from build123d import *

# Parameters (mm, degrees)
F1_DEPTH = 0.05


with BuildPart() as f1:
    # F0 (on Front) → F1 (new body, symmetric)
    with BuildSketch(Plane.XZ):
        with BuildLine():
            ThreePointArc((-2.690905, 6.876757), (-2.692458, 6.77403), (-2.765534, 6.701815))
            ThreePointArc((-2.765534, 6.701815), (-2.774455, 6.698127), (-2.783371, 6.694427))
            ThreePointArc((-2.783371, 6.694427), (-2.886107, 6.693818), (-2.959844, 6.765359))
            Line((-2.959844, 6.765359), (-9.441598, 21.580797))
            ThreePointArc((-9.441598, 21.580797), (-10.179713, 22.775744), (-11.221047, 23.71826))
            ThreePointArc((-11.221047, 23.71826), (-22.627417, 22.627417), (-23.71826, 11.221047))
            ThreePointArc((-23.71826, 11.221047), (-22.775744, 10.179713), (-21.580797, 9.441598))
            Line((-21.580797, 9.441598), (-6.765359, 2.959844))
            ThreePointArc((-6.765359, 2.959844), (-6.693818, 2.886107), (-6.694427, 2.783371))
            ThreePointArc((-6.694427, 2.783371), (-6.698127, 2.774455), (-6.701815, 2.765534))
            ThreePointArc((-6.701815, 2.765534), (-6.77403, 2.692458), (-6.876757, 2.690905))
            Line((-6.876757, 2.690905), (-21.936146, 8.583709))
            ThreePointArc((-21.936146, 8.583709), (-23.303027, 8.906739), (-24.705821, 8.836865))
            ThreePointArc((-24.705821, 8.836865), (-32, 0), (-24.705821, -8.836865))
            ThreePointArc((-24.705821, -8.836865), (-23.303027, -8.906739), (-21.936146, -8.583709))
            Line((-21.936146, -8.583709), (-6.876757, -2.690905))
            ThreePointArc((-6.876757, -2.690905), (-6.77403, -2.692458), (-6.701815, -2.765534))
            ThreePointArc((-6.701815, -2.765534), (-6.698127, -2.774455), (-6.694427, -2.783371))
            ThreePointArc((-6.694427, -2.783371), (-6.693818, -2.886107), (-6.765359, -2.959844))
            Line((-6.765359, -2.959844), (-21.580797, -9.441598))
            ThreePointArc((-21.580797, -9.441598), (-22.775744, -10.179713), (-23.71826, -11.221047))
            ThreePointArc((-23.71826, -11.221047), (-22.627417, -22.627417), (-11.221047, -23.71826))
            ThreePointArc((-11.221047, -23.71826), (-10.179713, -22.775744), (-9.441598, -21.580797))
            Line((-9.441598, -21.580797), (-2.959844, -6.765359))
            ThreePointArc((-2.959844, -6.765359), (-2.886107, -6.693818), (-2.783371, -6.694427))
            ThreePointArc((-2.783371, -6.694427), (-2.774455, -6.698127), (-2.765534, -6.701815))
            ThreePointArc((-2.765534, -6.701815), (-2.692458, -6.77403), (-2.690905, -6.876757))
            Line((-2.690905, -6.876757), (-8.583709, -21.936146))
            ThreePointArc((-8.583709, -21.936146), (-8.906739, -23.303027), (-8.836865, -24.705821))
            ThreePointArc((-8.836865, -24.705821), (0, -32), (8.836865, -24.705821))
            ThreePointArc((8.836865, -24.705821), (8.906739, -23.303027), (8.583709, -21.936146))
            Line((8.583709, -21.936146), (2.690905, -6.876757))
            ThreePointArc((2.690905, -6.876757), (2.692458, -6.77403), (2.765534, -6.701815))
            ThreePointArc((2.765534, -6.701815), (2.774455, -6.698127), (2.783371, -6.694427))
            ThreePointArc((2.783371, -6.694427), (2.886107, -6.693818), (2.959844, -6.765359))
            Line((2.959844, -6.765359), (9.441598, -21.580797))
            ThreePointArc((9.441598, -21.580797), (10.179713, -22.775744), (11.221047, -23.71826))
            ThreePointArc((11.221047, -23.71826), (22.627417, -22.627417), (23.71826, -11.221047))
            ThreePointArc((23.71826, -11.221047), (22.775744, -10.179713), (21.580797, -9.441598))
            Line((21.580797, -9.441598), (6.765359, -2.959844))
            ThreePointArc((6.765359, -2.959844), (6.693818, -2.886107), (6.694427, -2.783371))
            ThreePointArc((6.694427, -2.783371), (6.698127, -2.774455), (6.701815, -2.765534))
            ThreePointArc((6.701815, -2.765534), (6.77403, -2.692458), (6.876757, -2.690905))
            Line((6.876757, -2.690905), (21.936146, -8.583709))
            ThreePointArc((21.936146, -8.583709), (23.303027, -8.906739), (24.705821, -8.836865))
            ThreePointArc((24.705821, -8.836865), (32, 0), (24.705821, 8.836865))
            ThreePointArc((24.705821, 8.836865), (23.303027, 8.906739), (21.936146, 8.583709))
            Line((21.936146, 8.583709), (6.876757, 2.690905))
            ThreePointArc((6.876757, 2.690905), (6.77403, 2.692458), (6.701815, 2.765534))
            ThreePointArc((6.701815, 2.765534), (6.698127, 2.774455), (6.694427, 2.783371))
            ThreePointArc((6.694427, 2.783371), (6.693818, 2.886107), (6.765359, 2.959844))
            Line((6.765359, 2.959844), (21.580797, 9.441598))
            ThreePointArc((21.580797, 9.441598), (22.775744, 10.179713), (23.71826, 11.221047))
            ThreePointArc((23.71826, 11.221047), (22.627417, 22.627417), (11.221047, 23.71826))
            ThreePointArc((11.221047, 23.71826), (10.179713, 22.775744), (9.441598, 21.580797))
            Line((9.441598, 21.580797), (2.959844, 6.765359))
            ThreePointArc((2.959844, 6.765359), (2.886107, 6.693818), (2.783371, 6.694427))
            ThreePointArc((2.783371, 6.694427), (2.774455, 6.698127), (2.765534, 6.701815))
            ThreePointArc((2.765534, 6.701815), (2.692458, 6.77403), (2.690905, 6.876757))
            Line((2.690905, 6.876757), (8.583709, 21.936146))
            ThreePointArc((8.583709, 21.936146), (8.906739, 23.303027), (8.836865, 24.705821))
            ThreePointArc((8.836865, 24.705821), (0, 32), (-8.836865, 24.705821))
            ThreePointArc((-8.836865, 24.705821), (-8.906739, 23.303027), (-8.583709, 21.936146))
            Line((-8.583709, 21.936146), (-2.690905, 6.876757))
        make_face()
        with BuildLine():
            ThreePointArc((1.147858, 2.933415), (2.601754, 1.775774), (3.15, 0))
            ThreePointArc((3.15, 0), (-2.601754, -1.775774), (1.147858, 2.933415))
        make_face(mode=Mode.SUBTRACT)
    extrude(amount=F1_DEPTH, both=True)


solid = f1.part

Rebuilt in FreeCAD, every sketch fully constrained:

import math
import FreeCAD as App
import Part
import Sketcher
from FreeCAD import Vector
Q = App.Units.Quantity

doc = App.newDocument("Part")
body = doc.addObject("PartDesign::Body", "Body")

# Sketch on XZ plane
sketch1 = body.newObject("Sketcher::SketchObject", "Sketch")
sketch1.AttachmentSupport = (doc.getObject("XZ_Plane"), [""])
sketch1.MapMode = "FlatFace"
sketch1.addGeometry(Part.ArcOfCircle(Part.Circle(Vector(-2.817313, 6.827293, 0), Vector(0, 0, 1), 0.135742), math.radians(-67.576164), math.radians(21.370669)), False)
sketch1.addGeometry(Part.ArcOfCircle(Part.Circle(Vector(-0.031439, 0.075607, 0), Vector(0, 0, 1), 7.168117), math.radians(112.421943), math.radians(112.576262)), False)
sketch1.addGeometry(Part.ArcOfCircle(Part.Circle(Vector(-2.835484, 6.819766, 0), Vector(0, 0, 1), 0.135741), math.radians(-156.370918), math.radians(-67.423665)), False)
sketch1.addGeometry(Part.LineSegment(Vector(-2.959844, 6.765359, 0), Vector(-9.441598, 21.580797, 0)), False)
sketch1.addGeometry(Part.ArcOfCircle(Part.Circle(Vector(-14.022392, 19.576694, 0), Vector(0, 0, 1), 5.00001), math.radians(23.629435), math.radians(55.925678)), False)
sketch1.addGeometry(Part.ArcOfCircle(Part.Circle(Vector(-16.263456, 16.263456, 0), Vector(0, 0, 1), 8.999999), math.radians(55.925684), math.radians(214.074316)), False)
sketch1.addGeometry(Part.ArcOfCircle(Part.Circle(Vector(-19.576694, 14.022392, 0), Vector(0, 0, 1), 5.00001), math.radians(-145.925678), math.radians(-113.629435)), False)
sketch1.addGeometry(Part.LineSegment(Vector(-21.580797, 9.441598, 0), Vector(-6.765359, 2.959844, 0)), False)
sketch1.addGeometry(Part.ArcOfCircle(Part.Circle(Vector(-6.819766, 2.835484, 0), Vector(0, 0, 1), 0.135741), math.radians(-22.576335), math.radians(66.370918)), False)
sketch1.addGeometry(Part.ArcOfCircle(Part.Circle(Vector(-0.075607, 0.031439, 0), Vector(0, 0, 1), 7.168117), math.radians(157.423738), math.radians(157.578057)), False)
sketch1.addGeometry(Part.ArcOfCircle(Part.Circle(Vector(-6.827293, 2.817313, 0), Vector(0, 0, 1), 0.135742), math.radians(-111.370669), math.radians(-22.423836)), False)
sketch1.addGeometry(Part.LineSegment(Vector(-6.876757, 2.690905, 0), Vector(-21.936146, 8.583709, 0)), False)
sketch1.addGeometry(Part.ArcOfCircle(Part.Circle(Vector(-23.758145, 3.927487, 0), Vector(0, 0, 1), 5.000008), math.radians(68.629391), math.radians(100.925645)), False)
sketch1.addGeometry(Part.ArcOfCircle(Part.Circle(Vector(-22.999999, 0, 0), Vector(0, 0, 1), 9.000001), math.radians(100.92569), math.radians(259.07431)), False)
sketch1.addGeometry(Part.ArcOfCircle(Part.Circle(Vector(-23.758145, -3.927487, 0), Vector(0, 0, 1), 5.000008), math.radians(-100.925645), math.radians(-68.629391)), False)
sketch1.addGeometry(Part.LineSegment(Vector(-21.936146, -8.583709, 0), Vector(-6.876757, -2.690905, 0)), False)
sketch1.addGeometry(Part.ArcOfCircle(Part.Circle(Vector(-6.827293, -2.817313, 0), Vector(0, 0, 1), 0.135742), math.radians(22.423836), math.radians(111.370669)), False)
sketch1.addGeometry(Part.ArcOfCircle(Part.Circle(Vector(-0.075607, -0.031439, 0), Vector(0, 0, 1), 7.168117), math.radians(-157.578057), math.radians(-157.423738)), False)
sketch1.addGeometry(Part.ArcOfCircle(Part.Circle(Vector(-6.819766, -2.835484, 0), Vector(0, 0, 1), 0.135741), math.radians(-66.370918), math.radians(22.576335)), False)
sketch1.addGeometry(Part.LineSegment(Vector(-6.765359, -2.959844, 0), Vector(-21.580797, -9.441598, 0)), False)
sketch1.addGeometry(Part.ArcOfCircle(Part.Circle(Vector(-19.576694, -14.022392, 0), Vector(0, 0, 1), 5.00001), math.radians(113.629435), math.radians(145.925678)), False)
sketch1.addGeometry(Part.ArcOfCircle(Part.Circle(Vector(-16.263456, -16.263456, 0), Vector(0, 0, 1), 8.999999), math.radians(145.925684), math.radians(304.074316)), False)
sketch1.addGeometry(Part.ArcOfCircle(Part.Circle(Vector(-14.022392, -19.576694, 0), Vector(0, 0, 1), 5.00001), math.radians(-55.925678), math.radians(-23.629435)), False)
sketch1.addGeometry(Part.LineSegment(Vector(-9.441598, -21.580797, 0), Vector(-2.959844, -6.765359, 0)), False)
sketch1.addGeometry(Part.ArcOfCircle(Part.Circle(Vector(-2.835484, -6.819766, 0), Vector(0, 0, 1), 0.135741), math.radians(67.423665), math.radians(156.370918)), False)
sketch1.addGeometry(Part.ArcOfCircle(Part.Circle(Vector(-0.031439, -0.075607, 0), Vector(0, 0, 1), 7.168117), math.radians(-112.576262), math.radians(-112.421943)), False)
sketch1.addGeometry(Part.ArcOfCircle(Part.Circle(Vector(-2.817313, -6.827293, 0), Vector(0, 0, 1), 0.135742), math.radians(-21.370669), math.radians(67.576164)), False)
sketch1.addGeometry(Part.LineSegment(Vector(-2.690905, -6.876757, 0), Vector(-8.583709, -21.936146, 0)), False)
sketch1.addGeometry(Part.ArcOfCircle(Part.Circle(Vector(-3.927487, -23.758145, 0), Vector(0, 0, 1), 5.000008), math.radians(158.629391), math.radians(190.925645)), False)
sketch1.addGeometry(Part.ArcOfCircle(Part.Circle(Vector(0, -22.999999, 0), Vector(0, 0, 1), 9.000001), math.radians(-169.07431), math.radians(-10.92569)), False)
sketch1.addGeometry(Part.ArcOfCircle(Part.Circle(Vector(3.927487, -23.758145, 0), Vector(0, 0, 1), 5.000008), math.radians(-10.925645), math.radians(21.370609)), False)
sketch1.addGeometry(Part.LineSegment(Vector(8.583709, -21.936146, 0), Vector(2.690905, -6.876757, 0)), False)
sketch1.addGeometry(Part.ArcOfCircle(Part.Circle(Vector(2.817313, -6.827293, 0), Vector(0, 0, 1), 0.135742), math.radians(112.423836), math.radians(201.370669)), False)
sketch1.addGeometry(Part.ArcOfCircle(Part.Circle(Vector(0.031439, -0.075607, 0), Vector(0, 0, 1), 7.168117), math.radians(-67.578057), math.radians(-67.423738)), False)
sketch1.addGeometry(Part.ArcOfCircle(Part.Circle(Vector(2.835484, -6.819766, 0), Vector(0, 0, 1), 0.135741), math.radians(23.629082), math.radians(112.576335)), False)
sketch1.addGeometry(Part.LineSegment(Vector(2.959844, -6.765359, 0), Vector(9.441598, -21.580797, 0)), False)
sketch1.addGeometry(Part.ArcOfCircle(Part.Circle(Vector(14.022392, -19.576694, 0), Vector(0, 0, 1), 5.00001), math.radians(-156.370565), math.radians(-124.074322)), False)
sketch1.addGeometry(Part.ArcOfCircle(Part.Circle(Vector(16.263456, -16.263456, 0), Vector(0, 0, 1), 8.999999), math.radians(-124.074316), math.radians(34.074316)), False)
sketch1.addGeometry(Part.ArcOfCircle(Part.Circle(Vector(19.576694, -14.022392, 0), Vector(0, 0, 1), 5.00001), math.radians(34.074322), math.radians(66.370565)), False)
sketch1.addGeometry(Part.LineSegment(Vector(21.580797, -9.441598, 0), Vector(6.765359, -2.959844, 0)), False)
sketch1.addGeometry(Part.ArcOfCircle(Part.Circle(Vector(6.819766, -2.835484, 0), Vector(0, 0, 1), 0.135741), math.radians(157.423665), math.radians(246.370918)), False)
sketch1.addGeometry(Part.ArcOfCircle(Part.Circle(Vector(0.075607, -0.031439, 0), Vector(0, 0, 1), 7.168117), math.radians(-22.576262), math.radians(-22.421943)), False)
sketch1.addGeometry(Part.ArcOfCircle(Part.Circle(Vector(6.827293, -2.817313, 0), Vector(0, 0, 1), 0.135742), math.radians(68.629331), math.radians(157.576164)), False)
sketch1.addGeometry(Part.LineSegment(Vector(6.876757, -2.690905, 0), Vector(21.936146, -8.583709, 0)), False)
sketch1.addGeometry(Part.ArcOfCircle(Part.Circle(Vector(23.758145, -3.927487, 0), Vector(0, 0, 1), 5.000008), math.radians(-111.370609), math.radians(-79.074355)), False)
sketch1.addGeometry(Part.ArcOfCircle(Part.Circle(Vector(22.999999, 0, 0), Vector(0, 0, 1), 9.000001), math.radians(-79.07431), math.radians(79.07431)), False)
sketch1.addGeometry(Part.ArcOfCircle(Part.Circle(Vector(23.758145, 3.927487, 0), Vector(0, 0, 1), 5.000008), math.radians(79.074355), math.radians(111.370609)), False)
sketch1.addGeometry(Part.LineSegment(Vector(21.936146, 8.583709, 0), Vector(6.876757, 2.690905, 0)), False)
sketch1.addGeometry(Part.ArcOfCircle(Part.Circle(Vector(6.827293, 2.817313, 0), Vector(0, 0, 1), 0.135742), math.radians(-157.576164), math.radians(-68.629331)), False)
sketch1.addGeometry(Part.ArcOfCircle(Part.Circle(Vector(0.075607, 0.031439, 0), Vector(0, 0, 1), 7.168117), math.radians(22.421943), math.radians(22.576262)), False)
sketch1.addGeometry(Part.ArcOfCircle(Part.Circle(Vector(6.819766, 2.835484, 0), Vector(0, 0, 1), 0.135741), math.radians(113.629082), math.radians(202.576335)), False)
sketch1.addGeometry(Part.LineSegment(Vector(6.765359, 2.959844, 0), Vector(21.580797, 9.441598, 0)), False)
sketch1.addGeometry(Part.ArcOfCircle(Part.Circle(Vector(19.576694, 14.022392, 0), Vector(0, 0, 1), 5.00001), math.radians(-66.370565), math.radians(-34.074322)), False)
sketch1.addGeometry(Part.ArcOfCircle(Part.Circle(Vector(16.263456, 16.263456, 0), Vector(0, 0, 1), 8.999999), math.radians(-34.074316), math.radians(124.074316)), False)
sketch1.addGeometry(Part.ArcOfCircle(Part.Circle(Vector(14.022392, 19.576694, 0), Vector(0, 0, 1), 5.00001), math.radians(124.074322), math.radians(156.370565)), False)
sketch1.addGeometry(Part.LineSegment(Vector(9.441598, 21.580797, 0), Vector(2.959844, 6.765359, 0)), False)
sketch1.addGeometry(Part.ArcOfCircle(Part.Circle(Vector(2.835484, 6.819766, 0), Vector(0, 0, 1), 0.135741), math.radians(-112.576335), math.radians(-23.629082)), False)
sketch1.addGeometry(Part.ArcOfCircle(Part.Circle(Vector(0.031439, 0.075607, 0), Vector(0, 0, 1), 7.168117), math.radians(67.423738), math.radians(67.578057)), False)
sketch1.addGeometry(Part.ArcOfCircle(Part.Circle(Vector(2.817313, 6.827293, 0), Vector(0, 0, 1), 0.135742), math.radians(158.629331), math.radians(247.576164)), False)
sketch1.addGeometry(Part.LineSegment(Vector(2.690905, 6.876757, 0), Vector(8.583709, 21.936146, 0)), False)
sketch1.addGeometry(Part.ArcOfCircle(Part.Circle(Vector(3.927487, 23.758145, 0), Vector(0, 0, 1), 5.000008), math.radians(-21.370609), math.radians(10.925645)), False)
sketch1.addGeometry(Part.ArcOfCircle(Part.Circle(Vector(0, 22.999999, 0), Vector(0, 0, 1), 9.000001), math.radians(10.92569), math.radians(169.07431)), False)
sketch1.addGeometry(Part.ArcOfCircle(Part.Circle(Vector(-3.927487, 23.758145, 0), Vector(0, 0, 1), 5.000008), math.radians(169.074355), math.radians(201.370609)), False)
sketch1.addGeometry(Part.LineSegment(Vector(-8.583709, 21.936146, 0), Vector(-2.690905, 6.876757, 0)), False)
sketch1.addGeometry(Part.ArcOfCircle(Part.Circle(Vector(0, 0, 0), Vector(0, 0, 1), 3.15), math.radians(68.629378), math.radians(359.999994)), False)
sketch1.addGeometry(Part.ArcOfCircle(Part.Circle(Vector(-0.000003, -0.000002, 0), Vector(0, 0, 1), 3.150003), math.radians(0.00003), math.radians(68.629342)), False)
sketch1.addConstraint(Sketcher.Constraint("Coincident", 0, 1, 1, 1))
sketch1.addConstraint(Sketcher.Constraint("Coincident", 1, 2, 2, 2))
sketch1.addConstraint(Sketcher.Constraint("Coincident", 2, 1, 3, 1))
sketch1.addConstraint(Sketcher.Constraint("Coincident", 3, 2, 4, 1))
sketch1.addConstraint(Sketcher.Constraint("Coincident", 4, 2, 5, 1))
sketch1.addConstraint(Sketcher.Constraint("Coincident", 5, 2, 6, 1))
sketch1.addConstraint(Sketcher.Constraint("Coincident", 6, 2, 7, 1))
sketch1.addConstraint(Sketcher.Constraint("Coincident", 7, 2, 8, 2))
sketch1.addConstraint(Sketcher.Constraint("Coincident", 8, 1, 9, 1))
sketch1.addConstraint(Sketcher.Constraint("Coincident", 9, 2, 10, 2))
sketch1.addConstraint(Sketcher.Constraint("Coincident", 10, 1, 11, 1))
sketch1.addConstraint(Sketcher.Constraint("Coincident", 11, 2, 12, 1))
sketch1.addConstraint(Sketcher.Constraint("Coincident", 12, 2, 13, 1))
sketch1.addConstraint(Sketcher.Constraint("Coincident", 13, 2, 14, 1))
sketch1.addConstraint(Sketcher.Constraint("Coincident", 14, 2, 15, 1))
sketch1.addConstraint(Sketcher.Constraint("Coincident", 15, 2, 16, 2))
sketch1.addConstraint(Sketcher.Constraint("Coincident", 16, 1, 17, 1))
sketch1.addConstraint(Sketcher.Constraint("Coincident", 17, 2, 18, 2))
sketch1.addConstraint(Sketcher.Constraint("Coincident", 18, 1, 19, 1))
sketch1.addConstraint(Sketcher.Constraint("Coincident", 19, 2, 20, 1))
sketch1.addConstraint(Sketcher.Constraint("Coincident", 20, 2, 21, 1))
sketch1.addConstraint(Sketcher.Constraint("Coincident", 21, 2, 22, 1))
sketch1.addConstraint(Sketcher.Constraint("Coincident", 22, 2, 23, 1))
sketch1.addConstraint(Sketcher.Constraint("Coincident", 23, 2, 24, 2))
sketch1.addConstraint(Sketcher.Constraint("Coincident", 24, 1, 25, 1))
sketch1.addConstraint(Sketcher.Constraint("Coincident", 25, 2, 26, 2))
sketch1.addConstraint(Sketcher.Constraint("Coincident", 26, 1, 27, 1))
sketch1.addConstraint(Sketcher.Constraint("Coincident", 27, 2, 28, 1))
sketch1.addConstraint(Sketcher.Constraint("Coincident", 28, 2, 29, 1))
sketch1.addConstraint(Sketcher.Constraint("Coincident", 29, 2, 30, 1))
sketch1.addConstraint(Sketcher.Constraint("Coincident", 30, 2, 31, 1))
sketch1.addConstraint(Sketcher.Constraint("Coincident", 31, 2, 32, 2))
sketch1.addConstraint(Sketcher.Constraint("Coincident", 32, 1, 33, 1))
sketch1.addConstraint(Sketcher.Constraint("Coincident", 33, 2, 34, 2))
sketch1.addConstraint(Sketcher.Constraint("Coincident", 34, 1, 35, 1))
sketch1.addConstraint(Sketcher.Constraint("Coincident", 35, 2, 36, 1))
sketch1.addConstraint(Sketcher.Constraint("Coincident", 36, 2, 37, 1))
sketch1.addConstraint(Sketcher.Constraint("Coincident", 37, 2, 38, 1))
sketch1.addConstraint(Sketcher.Constraint("Coincident", 38, 2, 39, 1))
sketch1.addConstraint(Sketcher.Constraint("Coincident", 39, 2, 40, 2))
sketch1.addConstraint(Sketcher.Constraint("Coincident", 40, 1, 41, 1))
sketch1.addConstraint(Sketcher.Constraint("Coincident", 41, 2, 42, 2))
sketch1.addConstraint(Sketcher.Constraint("Coincident", 42, 1, 43, 1))
sketch1.addConstraint(Sketcher.Constraint("Coincident", 43, 2, 44, 1))
sketch1.addConstraint(Sketcher.Constraint("Coincident", 44, 2, 45, 1))
sketch1.addConstraint(Sketcher.Constraint("Coincident", 45, 2, 46, 1))
sketch1.addConstraint(Sketcher.Constraint("Coincident", 46, 2, 47, 1))
sketch1.addConstraint(Sketcher.Constraint("Coincident", 47, 2, 48, 2))
sketch1.addConstraint(Sketcher.Constraint("Coincident", 48, 1, 49, 1))
sketch1.addConstraint(Sketcher.Constraint("Coincident", 49, 2, 50, 2))
sketch1.addConstraint(Sketcher.Constraint("Coincident", 50, 1, 51, 1))
sketch1.addConstraint(Sketcher.Constraint("Coincident", 51, 2, 52, 1))
sketch1.addConstraint(Sketcher.Constraint("Coincident", 52, 2, 53, 1))
sketch1.addConstraint(Sketcher.Constraint("Coincident", 53, 2, 54, 1))
sketch1.addConstraint(Sketcher.Constraint("Coincident", 54, 2, 55, 1))
sketch1.addConstraint(Sketcher.Constraint("Coincident", 55, 2, 56, 2))
sketch1.addConstraint(Sketcher.Constraint("Coincident", 56, 1, 57, 1))
sketch1.addConstraint(Sketcher.Constraint("Coincident", 57, 2, 58, 2))
sketch1.addConstraint(Sketcher.Constraint("Coincident", 58, 1, 59, 1))
sketch1.addConstraint(Sketcher.Constraint("Coincident", 59, 2, 60, 1))
sketch1.addConstraint(Sketcher.Constraint("Coincident", 60, 2, 61, 1))
sketch1.addConstraint(Sketcher.Constraint("Coincident", 61, 2, 62, 1))
sketch1.addConstraint(Sketcher.Constraint("Coincident", 62, 2, 63, 1))
sketch1.addConstraint(Sketcher.Constraint("Coincident", 63, 2, 0, 2))
sketch1.addConstraint(Sketcher.Constraint("Coincident", 64, 1, 65, 2))
sketch1.addConstraint(Sketcher.Constraint("Coincident", 65, 1, 64, 2))
sketch1.addConstraint(Sketcher.Constraint("Coincident", 64, 3, -1, 1))
sketch1.addConstraint(Sketcher.Constraint("PointOnObject", 13, 3, -1))
sketch1.addConstraint(Sketcher.Constraint("PointOnObject", 29, 3, -2))
sketch1.addConstraint(Sketcher.Constraint("PointOnObject", 45, 3, -1))
sketch1.addConstraint(Sketcher.Constraint("PointOnObject", 61, 3, -2))
sketch1.addConstraint(Sketcher.Constraint("PointOnObject", 65, 3, -1))
sketch1.addConstraint(Sketcher.Constraint("PointOnObject", 65, 1, -1))
sketch1.addConstraint(Sketcher.Constraint("Radius", 5, Q("8.999999 mm")))
sketch1.addConstraint(Sketcher.Constraint("Radius", 13, Q("9.000001 mm")))
sketch1.addConstraint(Sketcher.Constraint("Radius", 21, Q("8.999999 mm")))
sketch1.addConstraint(Sketcher.Constraint("Radius", 29, Q("9.000001 mm")))
sketch1.addConstraint(Sketcher.Constraint("Radius", 37, Q("8.999999 mm")))
sketch1.addConstraint(Sketcher.Constraint("Radius", 45, Q("9.000001 mm")))
sketch1.addConstraint(Sketcher.Constraint("Radius", 53, Q("8.999999 mm")))
sketch1.addConstraint(Sketcher.Constraint("Radius", 61, Q("9.000001 mm")))
sketch1.addConstraint(Sketcher.Constraint("Radius", 64, Q("3.15 mm")))
sketch1.addConstraint(Sketcher.Constraint("DistanceX", 13, 3, -1, 1, Q("22.999999 mm")))
sketch1.addConstraint(Sketcher.Constraint("DistanceY", 29, 3, -1, 1, Q("22.999999 mm")))
sketch1.addConstraint(Sketcher.Constraint("DistanceX", -1, 1, 45, 3, Q("22.999999 mm")))
sketch1.addConstraint(Sketcher.Constraint("DistanceY", -1, 1, 61, 3, Q("22.999999 mm")))
sketch1.addConstraint(Sketcher.Constraint("Radius", 0, Q("0.135742 mm")))
sketch1.addConstraint(Sketcher.Constraint("Radius", 2, Q("0.135741 mm")))
sketch1.addConstraint(Sketcher.Constraint("Radius", 4, Q("5.00001 mm")))
sketch1.addConstraint(Sketcher.Constraint("Radius", 6, Q("5.00001 mm")))
sketch1.addConstraint(Sketcher.Constraint("Radius", 8, Q("0.135741 mm")))
sketch1.addConstraint(Sketcher.Constraint("Radius", 10, Q("0.135742 mm")))
sketch1.addConstraint(Sketcher.Constraint("Radius", 12, Q("5.000008 mm")))
sketch1.addConstraint(Sketcher.Constraint("Radius", 14, Q("5.000008 mm")))
sketch1.addConstraint(Sketcher.Constraint("Radius", 16, Q("0.135742 mm")))
sketch1.addConstraint(Sketcher.Constraint("Radius", 18, Q("0.135741 mm")))
sketch1.addConstraint(Sketcher.Constraint("Radius", 20, Q("5.00001 mm")))
sketch1.addConstraint(Sketcher.Constraint("Radius", 22, Q("5.00001 mm")))
sketch1.addConstraint(Sketcher.Constraint("Radius", 24, Q("0.135741 mm")))
sketch1.addConstraint(Sketcher.Constraint("Radius", 26, Q("0.135742 mm")))
sketch1.addConstraint(Sketcher.Constraint("Radius", 28, Q("5.000008 mm")))
sketch1.addConstraint(Sketcher.Constraint("Radius", 30, Q("5.000008 mm")))
sketch1.addConstraint(Sketcher.Constraint("Radius", 32, Q("0.135742 mm")))
sketch1.addConstraint(Sketcher.Constraint("Radius", 34, Q("0.135741 mm")))
sketch1.addConstraint(Sketcher.Constraint("Radius", 36, Q("5.00001 mm")))
sketch1.addConstraint(Sketcher.Constraint("Radius", 38, Q("5.00001 mm")))
sketch1.addConstraint(Sketcher.Constraint("Radius", 40, Q("0.135741 mm")))
sketch1.addConstraint(Sketcher.Constraint("Radius", 42, Q("0.135742 mm")))
sketch1.addConstraint(Sketcher.Constraint("Radius", 44, Q("5.000008 mm")))
sketch1.addConstraint(Sketcher.Constraint("Radius", 46, Q("5.000008 mm")))
sketch1.addConstraint(Sketcher.Constraint("Radius", 48, Q("0.135742 mm")))
sketch1.addConstraint(Sketcher.Constraint("Radius", 50, Q("0.135741 mm")))
sketch1.addConstraint(Sketcher.Constraint("Radius", 52, Q("5.00001 mm")))
sketch1.addConstraint(Sketcher.Constraint("Radius", 54, Q("5.00001 mm")))
sketch1.addConstraint(Sketcher.Constraint("Radius", 56, Q("0.135741 mm")))
sketch1.addConstraint(Sketcher.Constraint("Radius", 58, Q("0.135742 mm")))
sketch1.addConstraint(Sketcher.Constraint("Radius", 60, Q("5.000008 mm")))
sketch1.addConstraint(Sketcher.Constraint("Radius", 62, Q("5.000008 mm")))
sketch1.addConstraint(Sketcher.Constraint("Radius", 1, Q("7.168117 mm")))
sketch1.addConstraint(Sketcher.Constraint("Radius", 9, Q("7.168117 mm")))
sketch1.addConstraint(Sketcher.Constraint("Radius", 17, Q("7.168117 mm")))
sketch1.addConstraint(Sketcher.Constraint("Radius", 25, Q("7.168117 mm")))
sketch1.addConstraint(Sketcher.Constraint("Radius", 33, Q("7.168117 mm")))
sketch1.addConstraint(Sketcher.Constraint("Radius", 41, Q("7.168117 mm")))
sketch1.addConstraint(Sketcher.Constraint("Radius", 49, Q("7.168117 mm")))
sketch1.addConstraint(Sketcher.Constraint("Radius", 57, Q("7.168117 mm")))
sketch1.addConstraint(Sketcher.Constraint("DistanceX", 3, 2, -1, 1, Q("9.441598 mm")))
sketch1.addConstraint(Sketcher.Constraint("DistanceY", -1, 1, 6, 2, Q("9.441598 mm")))
sketch1.addConstraint(Sketcher.Constraint("DistanceY", 19, 2, -1, 1, Q("9.441598 mm")))
sketch1.addConstraint(Sketcher.Constraint("DistanceX", 22, 2, -1, 1, Q("9.441598 mm")))
sketch1.addConstraint(Sketcher.Constraint("DistanceX", -1, 1, 35, 2, Q("9.441598 mm")))
sketch1.addConstraint(Sketcher.Constraint("DistanceY", 38, 2, -1, 1, Q("9.441598 mm")))
sketch1.addConstraint(Sketcher.Constraint("DistanceY", -1, 1, 51, 2, Q("9.441598 mm")))
sketch1.addConstraint(Sketcher.Constraint("DistanceX", -1, 1, 54, 2, Q("9.441598 mm")))
sketch1.addConstraint(Sketcher.Constraint("Distance", 3, Q("16.171281 mm")))
sketch1.addConstraint(Sketcher.Constraint("Distance", 7, Q("16.171281 mm")))
sketch1.addConstraint(Sketcher.Constraint("Distance", 11, Q("16.171281 mm")))
sketch1.addConstraint(Sketcher.Constraint("Distance", 15, Q("16.171281 mm")))
sketch1.addConstraint(Sketcher.Constraint("Distance", 19, Q("16.171281 mm")))
sketch1.addConstraint(Sketcher.Constraint("Distance", 23, Q("16.171281 mm")))
sketch1.addConstraint(Sketcher.Constraint("Distance", 27, Q("16.171281 mm")))
sketch1.addConstraint(Sketcher.Constraint("Distance", 31, Q("16.171281 mm")))
sketch1.addConstraint(Sketcher.Constraint("Distance", 35, Q("16.171281 mm")))
sketch1.addConstraint(Sketcher.Constraint("Distance", 39, Q("16.171281 mm")))
sketch1.addConstraint(Sketcher.Constraint("Distance", 43, Q("16.171281 mm")))
sketch1.addConstraint(Sketcher.Constraint("Distance", 47, Q("16.171281 mm")))
sketch1.addConstraint(Sketcher.Constraint("Distance", 51, Q("16.171281 mm")))
sketch1.addConstraint(Sketcher.Constraint("Distance", 55, Q("16.171281 mm")))
sketch1.addConstraint(Sketcher.Constraint("Distance", 59, Q("16.171281 mm")))
sketch1.addConstraint(Sketcher.Constraint("Distance", 63, Q("16.171281 mm")))
sketch1.addConstraint(Sketcher.Constraint("DistanceX", 1, 3, -1, 1, Q("0.031439 mm")))
sketch1.addConstraint(Sketcher.Constraint("DistanceX", 4, 3, -1, 1, Q("14.022392 mm")))
sketch1.addConstraint(Sketcher.Constraint("DistanceY", -1, 1, 6, 3, Q("14.022392 mm")))
sketch1.addConstraint(Sketcher.Constraint("DistanceY", -1, 1, 9, 3, Q("0.031439 mm")))
sketch1.addConstraint(Sketcher.Constraint("DistanceY", 17, 3, -1, 1, Q("0.031439 mm")))
sketch1.addConstraint(Sketcher.Constraint("DistanceY", 20, 3, -1, 1, Q("14.022392 mm")))
sketch1.addConstraint(Sketcher.Constraint("DistanceX", 22, 3, -1, 1, Q("14.022392 mm")))
sketch1.addConstraint(Sketcher.Constraint("DistanceX", 25, 3, -1, 1, Q("0.031439 mm")))
sketch1.addConstraint(Sketcher.Constraint("DistanceX", -1, 1, 33, 3, Q("0.031439 mm")))
sketch1.addConstraint(Sketcher.Constraint("DistanceX", -1, 1, 36, 3, Q("14.022392 mm")))
sketch1.addConstraint(Sketcher.Constraint("DistanceY", 38, 3, -1, 1, Q("14.022392 mm")))
sketch1.addConstraint(Sketcher.Constraint("DistanceY", 41, 3, -1, 1, Q("0.031439 mm")))
sketch1.addConstraint(Sketcher.Constraint("DistanceY", -1, 1, 49, 3, Q("0.031439 mm")))
sketch1.addConstraint(Sketcher.Constraint("DistanceY", -1, 1, 52, 3, Q("14.022392 mm")))
sketch1.addConstraint(Sketcher.Constraint("DistanceX", -1, 1, 54, 3, Q("14.022392 mm")))
sketch1.addConstraint(Sketcher.Constraint("DistanceX", -1, 1, 57, 3, Q("0.031439 mm")))
sketch1.addConstraint(Sketcher.Constraint("DistanceX", 1, 2, -1, 1, Q("2.783371 mm")))
sketch1.addConstraint(Sketcher.Constraint("DistanceY", -1, 1, 2, 1, Q("6.765359 mm")))
sketch1.addConstraint(Sketcher.Constraint("DistanceY", -1, 1, 4, 2, Q("23.71826 mm")))
sketch1.addConstraint(Sketcher.Constraint("DistanceX", 5, 2, -1, 1, Q("23.71826 mm")))
sketch1.addConstraint(Sketcher.Constraint("DistanceX", 7, 2, -1, 1, Q("6.765359 mm")))
sketch1.addConstraint(Sketcher.Constraint("DistanceY", -1, 1, 8, 1, Q("2.783371 mm")))
sketch1.addConstraint(Sketcher.Constraint("DistanceY", -1, 1, 11, 2, Q("8.583709 mm")))
sketch1.addConstraint(Sketcher.Constraint("DistanceX", 12, 2, -1, 1, Q("24.705821 mm")))
sketch1.addConstraint(Sketcher.Constraint("DistanceX", 13, 2, -1, 1, Q("24.705821 mm")))
sketch1.addConstraint(Sketcher.Constraint("DistanceY", 14, 2, -1, 1, Q("8.583709 mm")))
sketch1.addConstraint(Sketcher.Constraint("DistanceY", 17, 2, -1, 1, Q("2.783371 mm")))
sketch1.addConstraint(Sketcher.Constraint("DistanceX", 18, 1, -1, 1, Q("6.765359 mm")))
sketch1.addConstraint(Sketcher.Constraint("DistanceX", 20, 2, -1, 1, Q("23.71826 mm")))
sketch1.addConstraint(Sketcher.Constraint("DistanceY", 21, 2, -1, 1, Q("23.71826 mm")))
sketch1.addConstraint(Sketcher.Constraint("DistanceY", 23, 2, -1, 1, Q("6.765359 mm")))
sketch1.addConstraint(Sketcher.Constraint("DistanceX", 24, 1, -1, 1, Q("2.783371 mm")))
sketch1.addConstraint(Sketcher.Constraint("DistanceX", 27, 2, -1, 1, Q("8.583709 mm")))
sketch1.addConstraint(Sketcher.Constraint("DistanceY", 28, 2, -1, 1, Q("24.705821 mm")))
sketch1.addConstraint(Sketcher.Constraint("DistanceY", 29, 2, -1, 1, Q("24.705821 mm")))
sketch1.addConstraint(Sketcher.Constraint("DistanceX", -1, 1, 30, 2, Q("8.583709 mm")))
sketch1.addConstraint(Sketcher.Constraint("DistanceX", -1, 1, 33, 2, Q("2.783371 mm")))
sketch1.addConstraint(Sketcher.Constraint("DistanceY", 34, 1, -1, 1, Q("6.765359 mm")))
sketch1.addConstraint(Sketcher.Constraint("DistanceY", 36, 2, -1, 1, Q("23.71826 mm")))
sketch1.addConstraint(Sketcher.Constraint("DistanceX", -1, 1, 37, 2, Q("23.71826 mm")))
sketch1.addConstraint(Sketcher.Constraint("DistanceX", -1, 1, 39, 2, Q("6.765359 mm")))
sketch1.addConstraint(Sketcher.Constraint("DistanceY", 40, 1, -1, 1, Q("2.783371 mm")))
sketch1.addConstraint(Sketcher.Constraint("DistanceY", 43, 2, -1, 1, Q("8.583709 mm")))
sketch1.addConstraint(Sketcher.Constraint("DistanceX", -1, 1, 44, 2, Q("24.705821 mm")))
sketch1.addConstraint(Sketcher.Constraint("DistanceX", -1, 1, 45, 2, Q("24.705821 mm")))
sketch1.addConstraint(Sketcher.Constraint("DistanceY", -1, 1, 46, 2, Q("8.583709 mm")))
sketch1.addConstraint(Sketcher.Constraint("DistanceY", -1, 1, 49, 2, Q("2.783371 mm")))
sketch1.addConstraint(Sketcher.Constraint("DistanceX", -1, 1, 50, 1, Q("6.765359 mm")))
sketch1.addConstraint(Sketcher.Constraint("DistanceX", -1, 1, 52, 2, Q("23.71826 mm")))
sketch1.addConstraint(Sketcher.Constraint("DistanceY", -1, 1, 53, 2, Q("23.71826 mm")))
sketch1.addConstraint(Sketcher.Constraint("DistanceY", -1, 1, 55, 2, Q("6.765359 mm")))
sketch1.addConstraint(Sketcher.Constraint("DistanceX", -1, 1, 56, 1, Q("2.783371 mm")))
sketch1.addConstraint(Sketcher.Constraint("DistanceX", -1, 1, 59, 2, Q("8.583709 mm")))
sketch1.addConstraint(Sketcher.Constraint("DistanceY", -1, 1, 60, 2, Q("24.705821 mm")))
sketch1.addConstraint(Sketcher.Constraint("DistanceY", -1, 1, 61, 2, Q("24.705821 mm")))
sketch1.addConstraint(Sketcher.Constraint("DistanceX", 62, 2, -1, 1, Q("8.583709 mm")))
sketch1.addConstraint(Sketcher.Constraint("DistanceX", -1, 1, 64, 1, Q("1.147858 mm")))
sketch1.addConstraint(Sketcher.Constraint("DistanceX", 0, 3, -1, 1, Q("2.817313 mm")))
sketch1.addConstraint(Sketcher.Constraint("DistanceY", -1, 1, 0, 3, Q("6.827293 mm")))
sketch1.addConstraint(Sketcher.Constraint("DistanceX", 2, 3, -1, 1, Q("2.835484 mm")))
sketch1.addConstraint(Sketcher.Constraint("DistanceX", 5, 3, -1, 1, Q("16.263456 mm")))
sketch1.addConstraint(Sketcher.Constraint("DistanceX", 8, 3, -1, 1, Q("6.819766 mm")))
sketch1.addConstraint(Sketcher.Constraint("DistanceX", 10, 3, -1, 1, Q("6.827293 mm")))
sketch1.addConstraint(Sketcher.Constraint("DistanceX", 12, 3, -1, 1, Q("23.758145 mm")))
sketch1.addConstraint(Sketcher.Constraint("DistanceX", 14, 3, -1, 1, Q("23.758145 mm")))
sketch1.addConstraint(Sketcher.Constraint("DistanceX", 16, 3, -1, 1, Q("6.827293 mm")))
sketch1.addConstraint(Sketcher.Constraint("DistanceY", 16, 3, -1, 1, Q("2.817313 mm")))
sketch1.addConstraint(Sketcher.Constraint("DistanceX", 18, 3, -1, 1, Q("6.819766 mm")))
sketch1.addConstraint(Sketcher.Constraint("DistanceX", 21, 3, -1, 1, Q("16.263456 mm")))
sketch1.addConstraint(Sketcher.Constraint("DistanceX", 24, 3, -1, 1, Q("2.835484 mm")))
sketch1.addConstraint(Sketcher.Constraint("DistanceX", 26, 3, -1, 1, Q("2.817313 mm")))
sketch1.addConstraint(Sketcher.Constraint("DistanceX", 28, 3, -1, 1, Q("3.927487 mm")))
sketch1.addConstraint(Sketcher.Constraint("DistanceX", -1, 1, 30, 3, Q("3.927487 mm")))
sketch1.addConstraint(Sketcher.Constraint("DistanceX", -1, 1, 32, 3, Q("2.817313 mm")))
sketch1.addConstraint(Sketcher.Constraint("DistanceY", 32, 3, -1, 1, Q("6.827293 mm")))
sketch1.addConstraint(Sketcher.Constraint("DistanceX", -1, 1, 34, 3, Q("2.835484 mm")))
sketch1.addConstraint(Sketcher.Constraint("DistanceX", -1, 1, 37, 3, Q("16.263456 mm")))
sketch1.addConstraint(Sketcher.Constraint("DistanceX", -1, 1, 40, 3, Q("6.819766 mm")))
sketch1.addConstraint(Sketcher.Constraint("DistanceX", -1, 1, 42, 3, Q("6.827293 mm")))
sketch1.addConstraint(Sketcher.Constraint("DistanceX", -1, 1, 44, 3, Q("23.758145 mm")))
sketch1.addConstraint(Sketcher.Constraint("DistanceX", -1, 1, 46, 3, Q("23.758145 mm")))
sketch1.addConstraint(Sketcher.Constraint("DistanceX", -1, 1, 48, 3, Q("6.827293 mm")))
sketch1.addConstraint(Sketcher.Constraint("DistanceY", -1, 1, 48, 3, Q("2.817313 mm")))
sketch1.addConstraint(Sketcher.Constraint("DistanceX", -1, 1, 50, 3, Q("6.819766 mm")))
sketch1.addConstraint(Sketcher.Constraint("DistanceX", -1, 1, 53, 3, Q("16.263456 mm")))
sketch1.addConstraint(Sketcher.Constraint("DistanceX", -1, 1, 56, 3, Q("2.835484 mm")))
sketch1.addConstraint(Sketcher.Constraint("DistanceX", -1, 1, 58, 3, Q("2.817313 mm")))
sketch1.addConstraint(Sketcher.Constraint("DistanceX", -1, 1, 60, 3, Q("3.927487 mm")))
sketch1.addConstraint(Sketcher.Constraint("DistanceX", 62, 3, -1, 1, Q("3.927487 mm")))
sketch1.addConstraint(Sketcher.Constraint("DistanceX", 0, 1, -1, 1, Q("2.765534 mm")))
sketch1.addConstraint(Sketcher.Constraint("DistanceX", 9, 2, -1, 1, Q("6.701815 mm")))
sketch1.addConstraint(Sketcher.Constraint("DistanceX", 16, 1, -1, 1, Q("6.701815 mm")))
sketch1.addConstraint(Sketcher.Constraint("DistanceX", 25, 2, -1, 1, Q("2.765534 mm")))
sketch1.addConstraint(Sketcher.Constraint("DistanceX", -1, 1, 32, 1, Q("2.765534 mm")))
sketch1.addConstraint(Sketcher.Constraint("DistanceX", -1, 1, 41, 2, Q("6.701815 mm")))
sketch1.addConstraint(Sketcher.Constraint("DistanceX", -1, 1, 48, 1, Q("6.701815 mm")))
sketch1.addConstraint(Sketcher.Constraint("DistanceX", -1, 1, 57, 2, Q("2.765534 mm")))
pad1 = body.newObject("PartDesign::Pad", "Pad")
pad1.Profile = sketch1
pad1.Length = 0.1
pad1.Midplane = True

doc.recompute()
